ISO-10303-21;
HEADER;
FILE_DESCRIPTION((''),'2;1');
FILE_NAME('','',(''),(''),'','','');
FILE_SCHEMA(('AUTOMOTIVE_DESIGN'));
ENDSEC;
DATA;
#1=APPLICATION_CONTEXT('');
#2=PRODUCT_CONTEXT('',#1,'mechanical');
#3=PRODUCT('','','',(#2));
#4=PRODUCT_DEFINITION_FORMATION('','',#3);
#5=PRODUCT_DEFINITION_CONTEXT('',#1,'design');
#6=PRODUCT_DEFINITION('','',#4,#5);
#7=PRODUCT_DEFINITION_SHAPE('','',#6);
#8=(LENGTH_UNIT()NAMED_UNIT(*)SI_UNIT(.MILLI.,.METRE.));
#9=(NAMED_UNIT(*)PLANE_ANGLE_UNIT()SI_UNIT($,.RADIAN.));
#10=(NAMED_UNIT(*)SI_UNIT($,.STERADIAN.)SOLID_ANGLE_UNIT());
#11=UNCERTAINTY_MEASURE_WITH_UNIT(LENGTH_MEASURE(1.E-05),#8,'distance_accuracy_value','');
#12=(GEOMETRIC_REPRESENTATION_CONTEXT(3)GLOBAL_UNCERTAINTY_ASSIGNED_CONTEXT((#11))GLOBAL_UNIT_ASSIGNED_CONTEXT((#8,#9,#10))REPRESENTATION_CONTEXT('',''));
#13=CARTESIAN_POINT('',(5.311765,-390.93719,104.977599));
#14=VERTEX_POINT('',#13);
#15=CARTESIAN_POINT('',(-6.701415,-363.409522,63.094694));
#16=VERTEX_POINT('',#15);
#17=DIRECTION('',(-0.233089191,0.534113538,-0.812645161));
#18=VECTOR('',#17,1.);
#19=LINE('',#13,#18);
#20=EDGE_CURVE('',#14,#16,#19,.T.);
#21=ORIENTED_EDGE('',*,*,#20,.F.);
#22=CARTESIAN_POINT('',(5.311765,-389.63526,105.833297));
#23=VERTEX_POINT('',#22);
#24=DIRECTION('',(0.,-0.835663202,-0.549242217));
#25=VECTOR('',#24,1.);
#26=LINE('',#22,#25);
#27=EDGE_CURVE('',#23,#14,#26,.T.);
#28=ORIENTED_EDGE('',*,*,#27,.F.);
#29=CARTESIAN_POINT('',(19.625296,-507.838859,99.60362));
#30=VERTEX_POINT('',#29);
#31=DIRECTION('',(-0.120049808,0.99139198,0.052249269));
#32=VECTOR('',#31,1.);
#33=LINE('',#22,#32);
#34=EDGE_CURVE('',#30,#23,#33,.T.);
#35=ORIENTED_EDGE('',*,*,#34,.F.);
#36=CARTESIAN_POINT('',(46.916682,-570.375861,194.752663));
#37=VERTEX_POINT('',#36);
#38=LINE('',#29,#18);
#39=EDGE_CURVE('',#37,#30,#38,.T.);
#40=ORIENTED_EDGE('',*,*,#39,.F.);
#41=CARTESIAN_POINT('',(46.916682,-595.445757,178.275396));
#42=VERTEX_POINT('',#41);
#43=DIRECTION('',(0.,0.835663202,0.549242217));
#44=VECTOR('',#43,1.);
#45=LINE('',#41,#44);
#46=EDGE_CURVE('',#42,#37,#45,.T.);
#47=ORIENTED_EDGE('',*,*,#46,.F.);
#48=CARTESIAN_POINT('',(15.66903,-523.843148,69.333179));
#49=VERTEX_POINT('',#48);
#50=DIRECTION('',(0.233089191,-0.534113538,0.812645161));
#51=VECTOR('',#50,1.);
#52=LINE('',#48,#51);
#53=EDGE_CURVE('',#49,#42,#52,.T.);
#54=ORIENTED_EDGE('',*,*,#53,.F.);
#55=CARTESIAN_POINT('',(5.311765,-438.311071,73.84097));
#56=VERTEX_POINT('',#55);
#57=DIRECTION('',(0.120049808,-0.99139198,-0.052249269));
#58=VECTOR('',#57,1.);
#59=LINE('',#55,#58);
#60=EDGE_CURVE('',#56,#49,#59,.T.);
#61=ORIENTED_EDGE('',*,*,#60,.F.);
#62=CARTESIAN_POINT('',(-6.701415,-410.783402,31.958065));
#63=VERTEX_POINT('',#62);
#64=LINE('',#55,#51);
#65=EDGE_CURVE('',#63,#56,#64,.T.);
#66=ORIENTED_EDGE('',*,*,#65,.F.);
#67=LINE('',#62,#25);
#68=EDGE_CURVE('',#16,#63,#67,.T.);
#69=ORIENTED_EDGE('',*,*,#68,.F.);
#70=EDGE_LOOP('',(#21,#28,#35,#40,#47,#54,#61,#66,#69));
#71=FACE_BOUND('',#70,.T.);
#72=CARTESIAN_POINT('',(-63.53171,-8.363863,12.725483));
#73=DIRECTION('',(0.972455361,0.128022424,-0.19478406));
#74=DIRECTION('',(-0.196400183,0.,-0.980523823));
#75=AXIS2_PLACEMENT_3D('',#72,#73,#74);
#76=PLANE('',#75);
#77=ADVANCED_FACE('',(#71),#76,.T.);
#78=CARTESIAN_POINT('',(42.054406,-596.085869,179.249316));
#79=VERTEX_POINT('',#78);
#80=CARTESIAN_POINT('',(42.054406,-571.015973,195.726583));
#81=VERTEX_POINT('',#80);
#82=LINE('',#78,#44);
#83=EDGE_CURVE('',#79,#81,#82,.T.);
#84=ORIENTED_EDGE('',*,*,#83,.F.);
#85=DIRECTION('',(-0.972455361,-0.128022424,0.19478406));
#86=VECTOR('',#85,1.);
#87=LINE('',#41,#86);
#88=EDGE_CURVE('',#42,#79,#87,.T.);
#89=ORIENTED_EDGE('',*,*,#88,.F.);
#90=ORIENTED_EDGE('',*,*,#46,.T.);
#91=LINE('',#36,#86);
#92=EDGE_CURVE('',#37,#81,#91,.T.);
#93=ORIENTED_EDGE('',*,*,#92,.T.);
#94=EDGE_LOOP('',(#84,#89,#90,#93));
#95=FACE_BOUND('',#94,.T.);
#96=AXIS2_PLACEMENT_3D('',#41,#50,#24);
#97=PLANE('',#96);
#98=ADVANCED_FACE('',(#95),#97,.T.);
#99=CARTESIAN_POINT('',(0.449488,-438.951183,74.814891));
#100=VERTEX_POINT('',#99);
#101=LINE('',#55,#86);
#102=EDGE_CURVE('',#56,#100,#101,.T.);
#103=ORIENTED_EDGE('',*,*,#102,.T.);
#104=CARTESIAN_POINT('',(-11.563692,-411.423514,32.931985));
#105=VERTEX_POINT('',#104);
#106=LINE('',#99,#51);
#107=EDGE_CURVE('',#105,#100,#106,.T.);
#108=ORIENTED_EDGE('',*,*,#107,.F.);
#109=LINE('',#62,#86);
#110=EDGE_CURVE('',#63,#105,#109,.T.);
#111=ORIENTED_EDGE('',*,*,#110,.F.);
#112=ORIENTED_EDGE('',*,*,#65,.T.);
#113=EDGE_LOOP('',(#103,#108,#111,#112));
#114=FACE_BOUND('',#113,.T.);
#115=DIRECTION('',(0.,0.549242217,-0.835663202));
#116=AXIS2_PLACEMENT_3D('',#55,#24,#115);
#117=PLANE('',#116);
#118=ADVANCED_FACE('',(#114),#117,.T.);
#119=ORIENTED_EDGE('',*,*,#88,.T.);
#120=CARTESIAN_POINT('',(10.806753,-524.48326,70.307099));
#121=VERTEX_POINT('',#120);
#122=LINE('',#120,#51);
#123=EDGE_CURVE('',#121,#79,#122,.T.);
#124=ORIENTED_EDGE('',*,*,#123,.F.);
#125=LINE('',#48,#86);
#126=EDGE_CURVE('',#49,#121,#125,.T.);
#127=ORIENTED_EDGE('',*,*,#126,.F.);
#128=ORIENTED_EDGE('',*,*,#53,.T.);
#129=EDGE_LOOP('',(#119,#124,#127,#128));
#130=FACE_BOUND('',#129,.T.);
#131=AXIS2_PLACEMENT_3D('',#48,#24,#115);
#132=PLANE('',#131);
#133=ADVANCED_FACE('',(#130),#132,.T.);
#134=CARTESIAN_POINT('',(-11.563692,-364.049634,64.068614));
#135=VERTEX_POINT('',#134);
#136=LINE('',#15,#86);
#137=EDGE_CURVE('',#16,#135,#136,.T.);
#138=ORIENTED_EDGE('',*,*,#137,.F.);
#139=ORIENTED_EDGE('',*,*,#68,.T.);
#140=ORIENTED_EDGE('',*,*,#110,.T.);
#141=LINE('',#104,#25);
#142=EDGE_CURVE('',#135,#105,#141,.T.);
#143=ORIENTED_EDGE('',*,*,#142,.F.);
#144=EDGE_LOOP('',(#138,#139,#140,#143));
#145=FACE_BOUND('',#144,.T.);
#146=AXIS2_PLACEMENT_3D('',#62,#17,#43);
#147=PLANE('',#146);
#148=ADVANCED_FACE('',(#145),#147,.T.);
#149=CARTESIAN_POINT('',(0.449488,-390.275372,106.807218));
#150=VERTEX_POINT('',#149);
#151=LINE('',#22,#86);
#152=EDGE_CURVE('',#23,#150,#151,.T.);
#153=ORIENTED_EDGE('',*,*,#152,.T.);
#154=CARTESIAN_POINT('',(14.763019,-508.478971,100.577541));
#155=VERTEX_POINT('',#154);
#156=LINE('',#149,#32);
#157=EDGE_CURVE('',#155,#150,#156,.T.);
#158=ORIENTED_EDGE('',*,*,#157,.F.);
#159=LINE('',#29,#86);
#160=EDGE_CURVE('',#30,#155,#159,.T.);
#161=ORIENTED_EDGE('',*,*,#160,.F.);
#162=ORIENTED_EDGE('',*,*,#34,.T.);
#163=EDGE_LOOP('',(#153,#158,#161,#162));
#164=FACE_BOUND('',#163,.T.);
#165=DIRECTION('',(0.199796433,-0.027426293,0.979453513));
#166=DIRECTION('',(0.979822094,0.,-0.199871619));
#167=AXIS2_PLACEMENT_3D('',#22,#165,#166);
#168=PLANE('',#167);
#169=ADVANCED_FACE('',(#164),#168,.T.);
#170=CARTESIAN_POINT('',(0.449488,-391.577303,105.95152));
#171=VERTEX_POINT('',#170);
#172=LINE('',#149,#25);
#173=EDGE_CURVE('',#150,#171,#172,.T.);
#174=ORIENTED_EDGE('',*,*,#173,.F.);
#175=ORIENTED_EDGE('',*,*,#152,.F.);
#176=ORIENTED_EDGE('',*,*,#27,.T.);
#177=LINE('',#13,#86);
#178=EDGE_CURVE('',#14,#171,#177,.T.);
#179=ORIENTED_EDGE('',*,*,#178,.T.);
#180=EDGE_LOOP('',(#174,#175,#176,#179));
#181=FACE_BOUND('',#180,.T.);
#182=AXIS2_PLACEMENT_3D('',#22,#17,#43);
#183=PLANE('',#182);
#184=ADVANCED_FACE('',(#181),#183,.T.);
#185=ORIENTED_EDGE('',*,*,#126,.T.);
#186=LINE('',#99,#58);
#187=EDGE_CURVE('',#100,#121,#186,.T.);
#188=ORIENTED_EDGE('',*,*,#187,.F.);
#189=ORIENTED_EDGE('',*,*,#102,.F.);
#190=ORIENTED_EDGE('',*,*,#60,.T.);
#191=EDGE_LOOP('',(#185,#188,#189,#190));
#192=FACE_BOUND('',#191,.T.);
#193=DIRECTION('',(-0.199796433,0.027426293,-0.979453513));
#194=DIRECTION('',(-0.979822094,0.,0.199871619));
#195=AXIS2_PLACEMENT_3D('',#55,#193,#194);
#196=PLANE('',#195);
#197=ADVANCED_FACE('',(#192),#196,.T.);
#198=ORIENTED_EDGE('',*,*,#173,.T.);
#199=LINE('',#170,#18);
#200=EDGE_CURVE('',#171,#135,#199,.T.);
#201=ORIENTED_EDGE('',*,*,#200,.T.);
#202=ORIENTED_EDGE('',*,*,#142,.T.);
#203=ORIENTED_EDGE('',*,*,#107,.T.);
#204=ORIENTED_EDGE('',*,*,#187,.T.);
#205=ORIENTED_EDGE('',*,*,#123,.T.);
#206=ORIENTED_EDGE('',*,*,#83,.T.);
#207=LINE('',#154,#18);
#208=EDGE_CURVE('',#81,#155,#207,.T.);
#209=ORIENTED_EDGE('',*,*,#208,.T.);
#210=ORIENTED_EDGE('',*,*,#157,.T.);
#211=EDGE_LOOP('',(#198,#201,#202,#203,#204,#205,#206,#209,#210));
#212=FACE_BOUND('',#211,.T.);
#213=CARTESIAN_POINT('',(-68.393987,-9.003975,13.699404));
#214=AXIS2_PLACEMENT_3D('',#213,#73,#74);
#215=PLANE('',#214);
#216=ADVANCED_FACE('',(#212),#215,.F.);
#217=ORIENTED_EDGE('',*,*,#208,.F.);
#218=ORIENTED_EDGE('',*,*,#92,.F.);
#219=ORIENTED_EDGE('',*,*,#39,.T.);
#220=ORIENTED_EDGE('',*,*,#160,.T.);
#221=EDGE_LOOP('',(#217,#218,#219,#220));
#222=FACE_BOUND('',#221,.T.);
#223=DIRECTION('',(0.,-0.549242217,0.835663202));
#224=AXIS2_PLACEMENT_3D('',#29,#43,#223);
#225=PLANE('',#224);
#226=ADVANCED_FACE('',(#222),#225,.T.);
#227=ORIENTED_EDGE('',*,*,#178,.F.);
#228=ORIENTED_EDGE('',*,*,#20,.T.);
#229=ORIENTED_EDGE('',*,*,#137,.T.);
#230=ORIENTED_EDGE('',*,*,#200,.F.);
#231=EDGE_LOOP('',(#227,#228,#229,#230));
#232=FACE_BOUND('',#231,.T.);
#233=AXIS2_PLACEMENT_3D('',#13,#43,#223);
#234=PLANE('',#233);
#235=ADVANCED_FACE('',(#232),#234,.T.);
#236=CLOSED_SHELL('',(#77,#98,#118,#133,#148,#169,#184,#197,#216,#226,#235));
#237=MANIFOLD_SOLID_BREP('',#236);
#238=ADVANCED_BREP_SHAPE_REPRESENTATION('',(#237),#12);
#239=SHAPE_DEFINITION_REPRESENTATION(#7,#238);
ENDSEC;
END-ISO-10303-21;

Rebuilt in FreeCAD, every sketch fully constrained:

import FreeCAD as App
import Part
import Sketcher
from FreeCAD import Vector


def add_polygon(sketch, points):
    """Adds a closed chain of lines whose ends are joined by coincident constraints."""
    first, n = sketch.GeometryCount, len(points)
    for a, b in zip(points, points[1:] + points[:1]):
        sketch.addGeometry(Part.LineSegment(App.Vector(*a, 0), App.Vector(*b, 0)), False)
    for i in range(n):
        sketch.addConstraint(Sketcher.Constraint("Coincident", first + i, 2, first + (i + 1) % n, 1))

doc = App.newDocument("Part")
body = doc.addObject("PartDesign::Body", "Body")

sketch1 = body.newObject("Sketcher::SketchObject", "Sketch")
sketch1.Placement = App.Placement(Vector(-68.393987, -9.003975, 13.699404), App.Rotation(Vector(0.193117752, 0.025423689, 0.98084615), Vector(-0.130522431, 0.991445357, 0), Vector(-0.972455361, -0.128022424, 0.19478406), "ZXY"))
add_polygon(sketch1, [(88.6, -506.1), (94.9, -387), (94.1, -388.3), (51.4, -359.4), (19.6, -406.4), (62.3, -435.3), (57.7, -521.4), (168.8, -596.5), (185.6, -571.6)])
sketch1.addConstraint([
    Sketcher.Constraint("Perpendicular", 1, 2),
    Sketcher.Constraint("Perpendicular", 2, 3),
    Sketcher.Constraint("Perpendicular", 3, 4),
    Sketcher.Constraint("Parallel", 0, 5),
    Sketcher.Constraint("Parallel", 4, 6),
    Sketcher.Constraint("Perpendicular", 6, 7),
    Sketcher.Constraint("Perpendicular", 7, 8),
    Sketcher.Constraint("Equal", 2, 4),
    Sketcher.Constraint("Distance", 7, 30.0),
    Sketcher.Constraint("DistanceY", 2, 2, -1, 1, 359.425998),
    Sketcher.Constraint("DistanceY", 6, 2, 3, 2, 190.080999),
    Sketcher.Constraint("DistanceX", 3, 2, 6, 2, 149.174599),
    Sketcher.Constraint("DistanceX", 8, 2, 7, 2, 97.007102),
    Sketcher.Constraint("Distance", 1, 1.557961),
    Sketcher.Constraint("Distance", 3, 56.69016),
    Sketcher.Constraint("Distance", 6, 134.058779),
    Sketcher.Constraint("DistanceY", 3, 2, -1, 1, 406.394612),
    Sketcher.Constraint("DistanceX", -1, 1, 0, 2, 94.926013),
])
pad1 = body.newObject("PartDesign::Pad", "Pad")
pad1.Profile = sketch1
pad1.Length = 5
pad1.Reversed = True

doc.recompute()
